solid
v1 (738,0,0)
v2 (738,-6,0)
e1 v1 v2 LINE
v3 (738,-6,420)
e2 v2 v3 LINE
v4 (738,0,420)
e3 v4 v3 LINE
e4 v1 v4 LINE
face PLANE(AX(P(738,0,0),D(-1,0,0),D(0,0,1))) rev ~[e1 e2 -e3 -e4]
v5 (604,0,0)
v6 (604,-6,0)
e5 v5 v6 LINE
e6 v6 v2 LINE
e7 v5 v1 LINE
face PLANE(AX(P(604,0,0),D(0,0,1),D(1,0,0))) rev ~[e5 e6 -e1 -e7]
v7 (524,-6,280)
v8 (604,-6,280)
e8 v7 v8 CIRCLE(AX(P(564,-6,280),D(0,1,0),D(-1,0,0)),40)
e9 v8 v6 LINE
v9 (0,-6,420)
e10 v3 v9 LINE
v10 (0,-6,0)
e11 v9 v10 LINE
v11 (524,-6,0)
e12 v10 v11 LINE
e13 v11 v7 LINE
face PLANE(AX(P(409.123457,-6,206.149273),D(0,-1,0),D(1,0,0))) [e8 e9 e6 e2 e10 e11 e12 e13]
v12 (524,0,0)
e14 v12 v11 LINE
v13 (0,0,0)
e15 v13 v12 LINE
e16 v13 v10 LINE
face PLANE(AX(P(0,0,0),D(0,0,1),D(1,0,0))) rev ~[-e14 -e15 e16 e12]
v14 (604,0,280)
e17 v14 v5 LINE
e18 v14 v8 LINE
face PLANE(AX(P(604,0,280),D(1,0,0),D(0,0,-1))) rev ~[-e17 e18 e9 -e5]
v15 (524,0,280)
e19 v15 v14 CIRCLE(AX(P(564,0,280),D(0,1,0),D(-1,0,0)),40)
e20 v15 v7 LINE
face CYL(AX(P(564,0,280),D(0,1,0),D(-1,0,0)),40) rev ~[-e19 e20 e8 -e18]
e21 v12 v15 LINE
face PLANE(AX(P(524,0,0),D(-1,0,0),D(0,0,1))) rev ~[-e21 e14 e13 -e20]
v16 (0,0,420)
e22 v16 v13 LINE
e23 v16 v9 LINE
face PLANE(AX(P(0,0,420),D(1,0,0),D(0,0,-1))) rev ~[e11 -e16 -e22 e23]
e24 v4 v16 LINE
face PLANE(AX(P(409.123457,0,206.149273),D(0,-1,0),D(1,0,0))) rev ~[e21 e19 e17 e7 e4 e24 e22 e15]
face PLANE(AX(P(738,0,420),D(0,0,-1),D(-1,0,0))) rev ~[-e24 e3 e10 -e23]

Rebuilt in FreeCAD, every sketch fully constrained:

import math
import FreeCAD as App
import Part
import Sketcher
from FreeCAD import Vector

doc = App.newDocument("Part")
body = doc.addObject("PartDesign::Body", "Body")

# Sketch on XZ plane
sketch1 = doc.addObject("Sketcher::SketchObject", "Sketch")
body.addObject(sketch1)
sketch1.AttachmentSupport = (doc.XZ_Plane, [""])
sketch1.MapMode = "FlatFace"
sketch1.addGeometry([
    Part.LineSegment(Vector(0, 420, 0), Vector(0, 0, 0)),  # 0
    Part.LineSegment(Vector(0, 0, 0), Vector(524, 0, 0)),  # 1
    Part.LineSegment(Vector(524, 0, 0), Vector(524, 280, 0)),  # 2
    Part.ArcOfCircle(Part.Circle(Vector(564, 280, 0), Vector(0, 0, 1), 40), math.radians(0), math.radians(180)),  # 3
    Part.LineSegment(Vector(604, 280, 0), Vector(604, 0, 0)),  # 4
    Part.LineSegment(Vector(604, 0, 0), Vector(738, 0, 0)),  # 5
    Part.LineSegment(Vector(738, 0, 0), Vector(738, 420, 0)),  # 6
    Part.LineSegment(Vector(738, 420, 0), Vector(0, 420, 0)),  # 7
], False)
sketch1.addConstraint([
    Sketcher.Constraint("Coincident", 0, 2, 1, 1),
    Sketcher.Constraint("Coincident", 1, 2, 2, 1),
    Sketcher.Constraint("Tangent", 2, 2, 3, 2),
    Sketcher.Constraint("Tangent", 3, 1, 4, 1),
    Sketcher.Constraint("Coincident", 4, 2, 5, 1),
    Sketcher.Constraint("Coincident", 5, 2, 6, 1),
    Sketcher.Constraint("Coincident", 6, 2, 7, 1),
    Sketcher.Constraint("Coincident", 7, 2, 0, 1),
    Sketcher.Constraint("Vertical", 0),
    Sketcher.Constraint("Horizontal", 1),
    Sketcher.Constraint("Vertical", 2),
    Sketcher.Constraint("Vertical", 4),
    Sketcher.Constraint("Horizontal", 5),
    Sketcher.Constraint("Vertical", 6),
    Sketcher.Constraint("Horizontal", 7),
    Sketcher.Constraint("Coincident", 0, 2, -1, 1),
    Sketcher.Constraint("PointOnObject", 4, 2, -1),
    Sketcher.Constraint("Radius", 3, 40.0),
    Sketcher.Constraint("DistanceX", 1, 1, 1, 2, 524.0),
    Sketcher.Constraint("DistanceX", 5, 1, 5, 2, 134.0),
    Sketcher.Constraint("DistanceY", 0, 2, 0, 1, 420.0),
    Sketcher.Constraint("DistanceY", 2, 1, 2, 2, 280.0),
])
pad1 = doc.addObject("PartDesign::Pad", "Pad")
body.addObject(pad1)
pad1.Profile = sketch1
pad1.Length = 6

doc.recompute()
